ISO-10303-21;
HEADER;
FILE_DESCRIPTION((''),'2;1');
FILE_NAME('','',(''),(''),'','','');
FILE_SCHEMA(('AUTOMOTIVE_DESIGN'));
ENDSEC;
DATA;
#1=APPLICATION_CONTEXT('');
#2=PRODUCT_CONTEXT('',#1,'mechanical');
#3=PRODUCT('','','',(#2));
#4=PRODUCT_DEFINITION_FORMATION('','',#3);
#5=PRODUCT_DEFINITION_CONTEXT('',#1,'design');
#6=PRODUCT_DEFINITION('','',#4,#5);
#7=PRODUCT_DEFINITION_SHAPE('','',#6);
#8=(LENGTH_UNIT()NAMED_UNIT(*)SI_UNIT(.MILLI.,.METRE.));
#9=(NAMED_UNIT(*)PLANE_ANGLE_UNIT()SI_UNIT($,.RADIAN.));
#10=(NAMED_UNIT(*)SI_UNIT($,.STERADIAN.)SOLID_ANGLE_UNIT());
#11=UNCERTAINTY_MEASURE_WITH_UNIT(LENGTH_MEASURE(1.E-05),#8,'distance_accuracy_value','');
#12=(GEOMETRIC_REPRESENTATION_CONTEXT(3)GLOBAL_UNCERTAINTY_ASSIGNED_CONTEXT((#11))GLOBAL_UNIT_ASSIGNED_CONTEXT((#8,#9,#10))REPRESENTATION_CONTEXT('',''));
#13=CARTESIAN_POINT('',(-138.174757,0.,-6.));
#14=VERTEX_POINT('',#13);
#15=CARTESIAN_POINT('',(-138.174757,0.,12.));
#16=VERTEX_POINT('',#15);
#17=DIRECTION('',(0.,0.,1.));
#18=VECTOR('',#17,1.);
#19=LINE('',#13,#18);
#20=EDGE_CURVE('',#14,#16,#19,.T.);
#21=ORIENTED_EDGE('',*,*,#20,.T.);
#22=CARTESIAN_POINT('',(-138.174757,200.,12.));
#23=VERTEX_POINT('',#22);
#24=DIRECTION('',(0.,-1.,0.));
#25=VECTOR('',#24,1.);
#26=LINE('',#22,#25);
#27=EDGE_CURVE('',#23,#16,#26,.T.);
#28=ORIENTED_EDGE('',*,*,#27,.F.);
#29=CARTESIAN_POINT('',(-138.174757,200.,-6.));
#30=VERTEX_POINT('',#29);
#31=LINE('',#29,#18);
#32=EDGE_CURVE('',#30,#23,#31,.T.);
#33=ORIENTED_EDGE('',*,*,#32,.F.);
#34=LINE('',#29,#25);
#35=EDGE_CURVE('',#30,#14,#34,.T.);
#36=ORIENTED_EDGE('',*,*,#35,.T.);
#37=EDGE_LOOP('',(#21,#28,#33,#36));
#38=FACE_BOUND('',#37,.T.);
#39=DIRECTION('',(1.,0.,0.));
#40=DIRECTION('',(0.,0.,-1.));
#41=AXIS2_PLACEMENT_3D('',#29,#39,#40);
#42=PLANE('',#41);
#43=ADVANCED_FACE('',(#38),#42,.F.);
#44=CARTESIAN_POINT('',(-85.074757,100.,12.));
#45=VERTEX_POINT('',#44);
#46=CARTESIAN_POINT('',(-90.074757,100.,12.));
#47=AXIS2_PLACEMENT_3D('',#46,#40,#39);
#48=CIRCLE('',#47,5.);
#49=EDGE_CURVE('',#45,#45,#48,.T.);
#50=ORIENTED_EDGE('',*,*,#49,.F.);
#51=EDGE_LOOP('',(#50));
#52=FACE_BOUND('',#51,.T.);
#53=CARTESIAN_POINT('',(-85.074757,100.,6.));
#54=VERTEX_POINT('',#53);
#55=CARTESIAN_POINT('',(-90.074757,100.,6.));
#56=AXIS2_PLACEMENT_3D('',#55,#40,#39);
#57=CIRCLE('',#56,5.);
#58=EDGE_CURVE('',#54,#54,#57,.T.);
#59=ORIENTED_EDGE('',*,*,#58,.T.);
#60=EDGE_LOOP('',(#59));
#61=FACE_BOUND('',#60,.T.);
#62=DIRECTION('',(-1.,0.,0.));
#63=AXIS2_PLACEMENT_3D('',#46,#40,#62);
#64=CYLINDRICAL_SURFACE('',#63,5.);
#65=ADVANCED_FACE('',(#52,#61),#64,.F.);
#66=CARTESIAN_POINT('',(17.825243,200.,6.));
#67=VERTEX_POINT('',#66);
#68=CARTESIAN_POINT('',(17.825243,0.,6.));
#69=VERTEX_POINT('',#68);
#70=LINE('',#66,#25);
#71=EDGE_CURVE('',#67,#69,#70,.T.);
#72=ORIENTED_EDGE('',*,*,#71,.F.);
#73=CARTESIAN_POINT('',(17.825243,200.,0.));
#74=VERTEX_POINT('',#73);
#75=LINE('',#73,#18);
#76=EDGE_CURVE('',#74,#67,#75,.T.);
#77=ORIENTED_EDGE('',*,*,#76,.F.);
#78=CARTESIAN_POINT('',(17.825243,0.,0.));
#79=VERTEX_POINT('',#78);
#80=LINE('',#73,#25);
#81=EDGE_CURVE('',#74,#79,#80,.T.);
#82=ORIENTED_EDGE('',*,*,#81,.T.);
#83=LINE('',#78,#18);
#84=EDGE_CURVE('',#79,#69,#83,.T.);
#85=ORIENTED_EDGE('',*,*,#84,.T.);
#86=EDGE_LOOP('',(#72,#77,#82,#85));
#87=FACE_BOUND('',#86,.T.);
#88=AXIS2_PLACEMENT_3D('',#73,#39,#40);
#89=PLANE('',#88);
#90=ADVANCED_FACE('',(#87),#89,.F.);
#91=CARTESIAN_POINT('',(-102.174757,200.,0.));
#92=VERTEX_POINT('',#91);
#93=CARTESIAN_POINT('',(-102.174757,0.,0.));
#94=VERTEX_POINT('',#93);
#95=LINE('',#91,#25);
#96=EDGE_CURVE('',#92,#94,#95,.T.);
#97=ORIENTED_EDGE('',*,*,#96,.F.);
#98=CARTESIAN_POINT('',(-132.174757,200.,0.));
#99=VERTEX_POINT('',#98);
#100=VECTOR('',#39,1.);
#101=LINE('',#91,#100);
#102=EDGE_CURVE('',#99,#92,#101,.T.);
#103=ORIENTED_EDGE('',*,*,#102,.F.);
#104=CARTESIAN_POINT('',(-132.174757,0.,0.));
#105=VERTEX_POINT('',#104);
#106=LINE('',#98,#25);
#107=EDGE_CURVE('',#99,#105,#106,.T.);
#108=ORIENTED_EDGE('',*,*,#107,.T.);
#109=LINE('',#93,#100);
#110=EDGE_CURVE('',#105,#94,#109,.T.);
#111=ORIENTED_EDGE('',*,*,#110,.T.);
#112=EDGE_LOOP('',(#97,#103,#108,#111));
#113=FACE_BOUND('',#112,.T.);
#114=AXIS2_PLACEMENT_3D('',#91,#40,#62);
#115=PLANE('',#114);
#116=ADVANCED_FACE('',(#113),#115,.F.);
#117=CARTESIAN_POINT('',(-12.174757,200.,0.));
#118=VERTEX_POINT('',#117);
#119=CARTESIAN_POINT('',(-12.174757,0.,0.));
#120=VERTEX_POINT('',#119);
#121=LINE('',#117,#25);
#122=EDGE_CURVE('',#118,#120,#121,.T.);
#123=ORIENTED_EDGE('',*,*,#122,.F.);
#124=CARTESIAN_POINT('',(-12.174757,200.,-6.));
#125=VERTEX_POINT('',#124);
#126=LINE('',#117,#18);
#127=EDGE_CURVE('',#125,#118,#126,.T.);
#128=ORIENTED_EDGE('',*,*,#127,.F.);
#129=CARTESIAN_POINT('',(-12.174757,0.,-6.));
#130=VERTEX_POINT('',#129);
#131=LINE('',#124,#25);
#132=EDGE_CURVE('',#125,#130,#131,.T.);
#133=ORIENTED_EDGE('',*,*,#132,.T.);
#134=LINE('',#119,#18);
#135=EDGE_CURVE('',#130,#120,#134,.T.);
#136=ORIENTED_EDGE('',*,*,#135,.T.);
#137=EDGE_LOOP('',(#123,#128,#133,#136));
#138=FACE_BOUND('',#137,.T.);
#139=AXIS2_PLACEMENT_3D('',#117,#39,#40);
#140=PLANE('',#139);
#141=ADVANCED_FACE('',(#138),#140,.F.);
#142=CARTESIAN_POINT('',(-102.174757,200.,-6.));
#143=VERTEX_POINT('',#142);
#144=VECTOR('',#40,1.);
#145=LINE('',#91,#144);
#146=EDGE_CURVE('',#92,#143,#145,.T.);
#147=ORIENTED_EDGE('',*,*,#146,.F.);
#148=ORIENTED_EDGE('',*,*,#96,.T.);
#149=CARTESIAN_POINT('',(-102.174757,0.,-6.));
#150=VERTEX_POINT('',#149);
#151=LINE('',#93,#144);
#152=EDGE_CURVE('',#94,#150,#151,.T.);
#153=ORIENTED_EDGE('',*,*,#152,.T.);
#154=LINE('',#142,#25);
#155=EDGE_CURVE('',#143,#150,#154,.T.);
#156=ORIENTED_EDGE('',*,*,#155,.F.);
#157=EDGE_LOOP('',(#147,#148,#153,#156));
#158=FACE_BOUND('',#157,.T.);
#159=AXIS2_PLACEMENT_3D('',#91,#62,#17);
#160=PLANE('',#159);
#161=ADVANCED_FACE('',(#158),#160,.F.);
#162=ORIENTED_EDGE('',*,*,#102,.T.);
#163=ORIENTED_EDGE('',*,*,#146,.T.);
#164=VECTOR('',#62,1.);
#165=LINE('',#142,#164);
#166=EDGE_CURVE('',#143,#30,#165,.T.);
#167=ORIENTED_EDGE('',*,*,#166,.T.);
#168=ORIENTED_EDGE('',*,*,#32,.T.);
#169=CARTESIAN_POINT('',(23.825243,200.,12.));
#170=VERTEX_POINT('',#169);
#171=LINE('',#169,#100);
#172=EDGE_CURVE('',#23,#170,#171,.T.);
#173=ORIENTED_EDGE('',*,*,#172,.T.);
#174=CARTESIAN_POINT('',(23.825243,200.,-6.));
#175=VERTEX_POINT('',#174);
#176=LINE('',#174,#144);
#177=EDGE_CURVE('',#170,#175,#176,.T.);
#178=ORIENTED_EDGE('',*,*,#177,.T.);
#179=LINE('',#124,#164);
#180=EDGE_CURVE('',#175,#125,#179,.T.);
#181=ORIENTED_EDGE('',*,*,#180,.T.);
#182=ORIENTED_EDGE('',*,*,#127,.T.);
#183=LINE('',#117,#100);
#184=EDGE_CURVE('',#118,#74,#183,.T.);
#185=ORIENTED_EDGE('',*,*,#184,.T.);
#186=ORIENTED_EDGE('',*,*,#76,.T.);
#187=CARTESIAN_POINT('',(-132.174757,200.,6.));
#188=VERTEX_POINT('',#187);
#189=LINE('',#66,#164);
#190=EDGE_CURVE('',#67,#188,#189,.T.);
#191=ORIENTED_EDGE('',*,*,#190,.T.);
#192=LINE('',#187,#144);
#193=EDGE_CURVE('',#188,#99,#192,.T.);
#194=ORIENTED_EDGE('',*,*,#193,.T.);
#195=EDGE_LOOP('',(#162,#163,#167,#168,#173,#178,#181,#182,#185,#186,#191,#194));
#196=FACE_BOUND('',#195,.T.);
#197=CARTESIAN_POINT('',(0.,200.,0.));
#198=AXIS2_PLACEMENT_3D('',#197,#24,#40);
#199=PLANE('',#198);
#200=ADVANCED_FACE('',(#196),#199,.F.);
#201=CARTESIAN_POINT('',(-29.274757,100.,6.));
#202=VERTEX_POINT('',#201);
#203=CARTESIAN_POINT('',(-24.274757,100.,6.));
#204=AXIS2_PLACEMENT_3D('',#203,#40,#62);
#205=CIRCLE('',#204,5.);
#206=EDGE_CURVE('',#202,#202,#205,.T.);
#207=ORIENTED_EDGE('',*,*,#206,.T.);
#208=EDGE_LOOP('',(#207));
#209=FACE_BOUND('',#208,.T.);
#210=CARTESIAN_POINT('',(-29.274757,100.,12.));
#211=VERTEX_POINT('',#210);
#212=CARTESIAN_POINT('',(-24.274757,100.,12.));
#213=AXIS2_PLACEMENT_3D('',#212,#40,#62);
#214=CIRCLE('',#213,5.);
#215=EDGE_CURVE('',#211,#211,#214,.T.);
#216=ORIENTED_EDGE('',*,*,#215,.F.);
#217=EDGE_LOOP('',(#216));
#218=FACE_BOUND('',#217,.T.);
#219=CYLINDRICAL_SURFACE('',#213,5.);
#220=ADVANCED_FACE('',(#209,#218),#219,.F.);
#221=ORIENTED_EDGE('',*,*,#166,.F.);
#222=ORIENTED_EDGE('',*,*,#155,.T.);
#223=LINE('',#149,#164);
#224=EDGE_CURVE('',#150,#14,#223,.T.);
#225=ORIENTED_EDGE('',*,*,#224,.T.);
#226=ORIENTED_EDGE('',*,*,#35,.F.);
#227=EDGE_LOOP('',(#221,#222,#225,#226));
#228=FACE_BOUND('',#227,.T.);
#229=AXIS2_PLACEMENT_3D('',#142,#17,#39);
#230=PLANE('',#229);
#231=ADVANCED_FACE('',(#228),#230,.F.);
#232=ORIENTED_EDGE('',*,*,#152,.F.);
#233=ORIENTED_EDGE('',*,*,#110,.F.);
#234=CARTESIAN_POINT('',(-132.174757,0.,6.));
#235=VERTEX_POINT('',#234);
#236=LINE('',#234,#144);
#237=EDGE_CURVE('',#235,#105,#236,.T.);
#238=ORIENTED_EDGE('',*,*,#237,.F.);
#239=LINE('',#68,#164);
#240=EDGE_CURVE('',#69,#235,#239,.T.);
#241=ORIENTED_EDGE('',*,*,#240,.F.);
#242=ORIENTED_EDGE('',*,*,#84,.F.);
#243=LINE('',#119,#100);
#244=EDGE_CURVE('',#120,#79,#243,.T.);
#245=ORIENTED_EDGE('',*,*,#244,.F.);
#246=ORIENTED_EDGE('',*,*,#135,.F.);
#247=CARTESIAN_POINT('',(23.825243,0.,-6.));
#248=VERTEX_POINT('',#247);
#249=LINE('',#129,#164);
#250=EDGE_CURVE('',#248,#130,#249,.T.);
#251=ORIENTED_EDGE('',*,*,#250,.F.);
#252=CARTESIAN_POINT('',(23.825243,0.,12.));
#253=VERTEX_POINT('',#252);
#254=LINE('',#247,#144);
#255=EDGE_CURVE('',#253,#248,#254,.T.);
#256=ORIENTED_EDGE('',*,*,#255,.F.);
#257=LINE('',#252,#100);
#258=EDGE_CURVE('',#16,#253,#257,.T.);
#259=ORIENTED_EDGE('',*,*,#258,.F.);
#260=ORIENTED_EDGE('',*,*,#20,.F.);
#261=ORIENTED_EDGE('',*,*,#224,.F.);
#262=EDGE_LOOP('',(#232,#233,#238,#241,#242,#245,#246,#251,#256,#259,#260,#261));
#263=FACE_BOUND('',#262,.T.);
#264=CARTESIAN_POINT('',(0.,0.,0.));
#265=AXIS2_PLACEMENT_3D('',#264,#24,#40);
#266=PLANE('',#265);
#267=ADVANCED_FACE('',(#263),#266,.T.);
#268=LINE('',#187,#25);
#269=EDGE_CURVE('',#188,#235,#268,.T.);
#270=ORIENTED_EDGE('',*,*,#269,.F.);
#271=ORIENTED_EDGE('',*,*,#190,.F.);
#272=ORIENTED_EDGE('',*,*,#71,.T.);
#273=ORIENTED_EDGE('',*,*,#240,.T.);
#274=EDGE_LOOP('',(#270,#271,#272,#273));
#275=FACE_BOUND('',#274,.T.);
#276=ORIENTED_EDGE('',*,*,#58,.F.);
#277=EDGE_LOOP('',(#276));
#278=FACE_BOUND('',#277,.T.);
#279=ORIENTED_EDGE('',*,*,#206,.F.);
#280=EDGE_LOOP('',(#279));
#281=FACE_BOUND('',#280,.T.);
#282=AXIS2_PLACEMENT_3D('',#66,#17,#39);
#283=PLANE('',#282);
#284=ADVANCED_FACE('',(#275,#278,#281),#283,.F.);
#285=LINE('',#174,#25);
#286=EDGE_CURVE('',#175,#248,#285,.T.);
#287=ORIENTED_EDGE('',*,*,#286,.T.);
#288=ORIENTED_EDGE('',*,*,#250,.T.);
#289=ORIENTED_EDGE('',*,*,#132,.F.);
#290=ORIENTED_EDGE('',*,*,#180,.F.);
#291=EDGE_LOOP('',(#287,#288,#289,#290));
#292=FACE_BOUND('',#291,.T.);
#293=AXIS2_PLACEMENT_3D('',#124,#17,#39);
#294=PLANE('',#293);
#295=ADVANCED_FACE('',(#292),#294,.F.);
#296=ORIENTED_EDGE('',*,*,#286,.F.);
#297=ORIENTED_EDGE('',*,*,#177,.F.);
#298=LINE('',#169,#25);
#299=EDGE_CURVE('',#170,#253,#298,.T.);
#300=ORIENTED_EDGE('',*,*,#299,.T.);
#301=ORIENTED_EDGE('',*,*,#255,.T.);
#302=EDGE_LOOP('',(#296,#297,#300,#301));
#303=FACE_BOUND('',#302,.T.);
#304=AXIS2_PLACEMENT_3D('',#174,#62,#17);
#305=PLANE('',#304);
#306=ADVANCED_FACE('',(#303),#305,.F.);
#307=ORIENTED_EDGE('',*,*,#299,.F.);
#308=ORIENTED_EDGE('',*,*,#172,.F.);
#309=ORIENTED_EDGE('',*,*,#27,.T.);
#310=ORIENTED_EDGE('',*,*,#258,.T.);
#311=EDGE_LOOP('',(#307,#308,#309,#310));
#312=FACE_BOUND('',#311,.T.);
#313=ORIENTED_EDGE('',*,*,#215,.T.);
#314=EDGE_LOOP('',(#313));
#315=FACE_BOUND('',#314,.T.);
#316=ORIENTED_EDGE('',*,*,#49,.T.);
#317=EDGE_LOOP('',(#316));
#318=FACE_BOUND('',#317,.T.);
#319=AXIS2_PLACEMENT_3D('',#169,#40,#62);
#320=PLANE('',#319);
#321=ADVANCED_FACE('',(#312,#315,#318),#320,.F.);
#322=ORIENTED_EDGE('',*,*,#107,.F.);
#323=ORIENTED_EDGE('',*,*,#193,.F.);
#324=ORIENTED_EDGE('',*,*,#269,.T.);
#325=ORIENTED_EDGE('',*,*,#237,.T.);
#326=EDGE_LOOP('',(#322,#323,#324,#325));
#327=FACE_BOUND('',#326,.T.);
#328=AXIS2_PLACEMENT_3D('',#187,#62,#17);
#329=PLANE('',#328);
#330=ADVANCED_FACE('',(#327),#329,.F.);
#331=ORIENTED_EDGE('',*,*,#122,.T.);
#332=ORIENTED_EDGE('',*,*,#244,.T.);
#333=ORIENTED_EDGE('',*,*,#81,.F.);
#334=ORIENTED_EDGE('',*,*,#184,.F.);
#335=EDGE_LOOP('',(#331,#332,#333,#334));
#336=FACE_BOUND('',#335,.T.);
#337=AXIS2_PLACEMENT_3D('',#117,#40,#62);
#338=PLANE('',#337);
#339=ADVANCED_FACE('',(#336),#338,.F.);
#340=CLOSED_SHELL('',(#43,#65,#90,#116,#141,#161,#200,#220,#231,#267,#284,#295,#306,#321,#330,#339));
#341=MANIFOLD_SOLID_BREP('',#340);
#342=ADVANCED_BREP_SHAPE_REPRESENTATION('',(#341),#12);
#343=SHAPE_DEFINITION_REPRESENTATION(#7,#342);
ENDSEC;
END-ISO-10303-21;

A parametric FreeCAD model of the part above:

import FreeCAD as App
import Part
import Sketcher
from FreeCAD import Vector
Q = App.Units.Quantity

doc = App.newDocument("Part")
body = doc.addObject("PartDesign::Body", "Body")

sketch1 = body.newObject("Sketcher::SketchObject", "Sketch")
sketch1.AttachmentSupport = (doc.getObject("XZ_Plane"), [""])
sketch1.MapMode = "FlatFace"
sketch1.addGeometry(Part.LineSegment(Vector(-12, 0, 0), Vector(18, 0, 0)), False)
sketch1.addGeometry(Part.LineSegment(Vector(18, 0, 0), Vector(18, 6, 0)), False)
sketch1.addGeometry(Part.LineSegment(Vector(18, 6, 0), Vector(-132, 6, 0)), False)
sketch1.addGeometry(Part.LineSegment(Vector(-132, 6, 0), Vector(-132, 0, 0)), False)
sketch1.addGeometry(Part.LineSegment(Vector(-132, 0, 0), Vector(-102, 0, 0)), False)
sketch1.addGeometry(Part.LineSegment(Vector(-102, 0, 0), Vector(-102, -6, 0)), False)
sketch1.addGeometry(Part.LineSegment(Vector(-102, -6, 0), Vector(-138, -6, 0)), False)
sketch1.addGeometry(Part.LineSegment(Vector(-138, -6, 0), Vector(-138, 12, 0)), False)
sketch1.addGeometry(Part.LineSegment(Vector(-138, 12, 0), Vector(24, 12, 0)), False)
sketch1.addGeometry(Part.LineSegment(Vector(24, 12, 0), Vector(24, -6, 0)), False)
sketch1.addGeometry(Part.LineSegment(Vector(24, -6, 0), Vector(-12, -6, 0)), False)
sketch1.addGeometry(Part.LineSegment(Vector(-12, -6, 0), Vector(-12, 0, 0)), False)
sketch1.addConstraint(Sketcher.Constraint("Coincident", 0, 2, 1, 1))
sketch1.addConstraint(Sketcher.Constraint("Coincident", 1, 2, 2, 1))
sketch1.addConstraint(Sketcher.Constraint("Coincident", 2, 2, 3, 1))
sketch1.addConstraint(Sketcher.Constraint("Coincident", 3, 2, 4, 1))
sketch1.addConstraint(Sketcher.Constraint("Coincident", 4, 2, 5, 1))
sketch1.addConstraint(Sketcher.Constraint("Coincident", 5, 2, 6, 1))
sketch1.addConstraint(Sketcher.Constraint("Coincident", 6, 2, 7, 1))
sketch1.addConstraint(Sketcher.Constraint("Coincident", 7, 2, 8, 1))
sketch1.addConstraint(Sketcher.Constraint("Coincident", 8, 2, 9, 1))
sketch1.addConstraint(Sketcher.Constraint("Coincident", 9, 2, 10, 1))
sketch1.addConstraint(Sketcher.Constraint("Coincident", 10, 2, 11, 1))
sketch1.addConstraint(Sketcher.Constraint("Coincident", 11, 2, 0, 1))
sketch1.addConstraint(Sketcher.Constraint("Horizontal", 0))
sketch1.addConstraint(Sketcher.Constraint("Vertical", 1))
sketch1.addConstraint(Sketcher.Constraint("Horizontal", 2))
sketch1.addConstraint(Sketcher.Constraint("Vertical", 3))
sketch1.addConstraint(Sketcher.Constraint("Horizontal", 4))
sketch1.addConstraint(Sketcher.Constraint("Vertical", 5))
sketch1.addConstraint(Sketcher.Constraint("Horizontal", 6))
sketch1.addConstraint(Sketcher.Constraint("Vertical", 7))
sketch1.addConstraint(Sketcher.Constraint("Horizontal", 8))
sketch1.addConstraint(Sketcher.Constraint("Vertical", 9))
sketch1.addConstraint(Sketcher.Constraint("Horizontal", 10))
sketch1.addConstraint(Sketcher.Constraint("Vertical", 11))
sketch1.addConstraint(Sketcher.Constraint("PointOnObject", 0, 2, -1))
sketch1.addConstraint(Sketcher.Constraint("PointOnObject", 3, 2, -1))
sketch1.addConstraint(Sketcher.Constraint("Horizontal", 6, 2, 9, 2))
sketch1.addConstraint(Sketcher.Constraint("Equal", 0, 4))
sketch1.addConstraint(Sketcher.Constraint("Equal", 6, 10))
sketch1.addConstraint(Sketcher.Constraint("Equal", 3, 5))
sketch1.addConstraint(Sketcher.Constraint("DistanceX", 0, 1, 0, 2, Q("30 mm")))
sketch1.addConstraint(Sketcher.Constraint("DistanceX", 2, 2, 2, 1, Q("150 mm")))
sketch1.addConstraint(Sketcher.Constraint("DistanceX", 6, 2, 6, 1, Q("36 mm")))
sketch1.addConstraint(Sketcher.Constraint("DistanceY", 1, 1, 1, 2, Q("6 mm")))
sketch1.addConstraint(Sketcher.Constraint("DistanceY", 7, 1, 7, 2, Q("18 mm")))
sketch1.addConstraint(Sketcher.Constraint("DistanceX", -1, 1, 0, 2, Q("17.825243 mm")))
pad1 = body.newObject("PartDesign::Pad", "Pad")
pad1.Profile = sketch1
pad1.Length = 200
pad1.Reversed = True

sketch2 = body.newObject("Sketcher::SketchObject", "Sketch001")
sketch2.AttachmentSupport = (doc.getObject("XY_Plane"), [""])
sketch2.MapMode = "FlatFace"
sketch2.AttachmentOffset = App.Placement(Vector(0, 0, 6), App.Rotation())
sketch2.addGeometry(Part.Circle(Vector(-24, 100, 0), Vector(0, 0, 1), 5), False)
sketch2.addGeometry(Part.Circle(Vector(-90, 100, 0), Vector(0, 0, 1), 5), False)
sketch2.addConstraint(Sketcher.Constraint("Equal", 0, 1))
sketch2.addConstraint(Sketcher.Constraint("Horizontal", 0, 3, 1, 3))
sketch2.addConstraint(Sketcher.Constraint("Diameter", 0, Q("10 mm")))
sketch2.addConstraint(Sketcher.Constraint("DistanceY", -1, 1, 0, 3, Q("100 mm")))
sketch2.addConstraint(Sketcher.Constraint("DistanceX", 1, 3, 0, 3, Q("65.8 mm")))
sketch2.addConstraint(Sketcher.Constraint("DistanceX", 0, 3, -1, 1, Q("24.274757 mm")))
pocket1 = body.newObject("PartDesign::Pocket", "Pocket")
pocket1.Profile = sketch2
pocket1.Type = "ThroughAll"
pocket1.Reversed = True

doc.recompute()
